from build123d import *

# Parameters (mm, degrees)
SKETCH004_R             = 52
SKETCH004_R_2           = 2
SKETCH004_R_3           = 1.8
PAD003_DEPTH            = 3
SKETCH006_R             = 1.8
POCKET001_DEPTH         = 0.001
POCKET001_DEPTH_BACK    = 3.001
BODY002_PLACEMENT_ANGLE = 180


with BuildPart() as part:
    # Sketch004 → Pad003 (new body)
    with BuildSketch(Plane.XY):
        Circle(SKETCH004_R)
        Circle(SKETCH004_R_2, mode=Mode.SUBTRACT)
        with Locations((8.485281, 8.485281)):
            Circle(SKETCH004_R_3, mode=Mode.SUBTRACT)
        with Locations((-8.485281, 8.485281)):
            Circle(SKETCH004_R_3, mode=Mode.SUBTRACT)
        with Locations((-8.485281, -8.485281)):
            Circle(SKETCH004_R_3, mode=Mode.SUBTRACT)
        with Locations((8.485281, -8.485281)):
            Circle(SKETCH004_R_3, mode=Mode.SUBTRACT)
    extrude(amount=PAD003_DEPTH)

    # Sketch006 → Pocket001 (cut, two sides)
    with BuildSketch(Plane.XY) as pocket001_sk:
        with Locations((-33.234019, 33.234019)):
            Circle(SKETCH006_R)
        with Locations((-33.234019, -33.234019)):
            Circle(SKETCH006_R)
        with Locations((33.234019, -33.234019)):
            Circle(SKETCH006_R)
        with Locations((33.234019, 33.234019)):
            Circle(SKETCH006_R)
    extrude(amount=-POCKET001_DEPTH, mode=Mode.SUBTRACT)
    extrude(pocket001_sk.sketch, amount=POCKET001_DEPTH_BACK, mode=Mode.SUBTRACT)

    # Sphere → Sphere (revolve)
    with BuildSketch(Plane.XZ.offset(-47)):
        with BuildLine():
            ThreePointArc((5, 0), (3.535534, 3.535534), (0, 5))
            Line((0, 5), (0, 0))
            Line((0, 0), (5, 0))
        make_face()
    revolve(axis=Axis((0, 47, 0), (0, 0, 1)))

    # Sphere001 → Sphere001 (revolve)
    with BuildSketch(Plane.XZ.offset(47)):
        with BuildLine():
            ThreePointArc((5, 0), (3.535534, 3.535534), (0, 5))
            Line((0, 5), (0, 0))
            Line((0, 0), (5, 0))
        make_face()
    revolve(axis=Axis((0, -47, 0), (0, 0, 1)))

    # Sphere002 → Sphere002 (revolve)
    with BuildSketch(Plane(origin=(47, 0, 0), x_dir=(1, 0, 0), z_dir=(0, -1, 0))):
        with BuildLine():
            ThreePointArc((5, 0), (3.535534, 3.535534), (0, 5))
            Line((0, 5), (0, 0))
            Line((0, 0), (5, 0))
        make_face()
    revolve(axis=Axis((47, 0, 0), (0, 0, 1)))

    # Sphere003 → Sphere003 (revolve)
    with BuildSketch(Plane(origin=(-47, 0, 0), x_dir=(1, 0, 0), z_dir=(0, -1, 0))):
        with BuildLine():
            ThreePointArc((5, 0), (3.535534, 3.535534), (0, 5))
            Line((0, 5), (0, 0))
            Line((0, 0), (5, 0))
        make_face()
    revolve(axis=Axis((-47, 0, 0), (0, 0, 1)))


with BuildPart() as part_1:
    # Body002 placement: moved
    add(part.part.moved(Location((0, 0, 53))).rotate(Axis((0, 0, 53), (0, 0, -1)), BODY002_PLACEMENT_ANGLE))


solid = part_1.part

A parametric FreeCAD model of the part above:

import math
import FreeCAD as App
import Part
import Sketcher

V = App.Vector

doc = App.newDocument("Part")
body = doc.addObject("PartDesign::Body", "Body")

# Sketch on XY plane
sketch1 = doc.addObject("Sketcher::SketchObject", "Sketch")
body.addObject(sketch1)
sketch1.AttachmentSupport = (doc.XY_Plane, [""])
sketch1.MapMode = "FlatFace"
sketch1.addGeometry(Part.Circle(V(0, 0, 0), V(0, 0, 1), 52), False)
sketch1.addGeometry(Part.Circle(V(-8.5, -8.5, 0), V(0, 0, 1), 1.8), False)
sketch1.addGeometry(Part.Circle(V(8.5, -8.5, 0), V(0, 0, 1), 1.8), False)
sketch1.addGeometry(Part.Circle(V(0, 0, 0), V(0, 0, 1), 2), False)
sketch1.addGeometry(Part.Circle(V(-8.5, 8.5, 0), V(0, 0, 1), 1.8), False)
sketch1.addGeometry(Part.Circle(V(8.5, 8.5, 0), V(0, 0, 1), 1.8), False)
sketch1.addConstraint(Sketcher.Constraint("Coincident", 0, 3, -1, 1))
sketch1.addConstraint(Sketcher.Constraint("Coincident", 3, 3, -1, 1))
sketch1.addConstraint(Sketcher.Constraint("Equal", 1, 2))
sketch1.addConstraint(Sketcher.Constraint("Equal", 2, 4))
sketch1.addConstraint(Sketcher.Constraint("Equal", 4, 5))
sketch1.addConstraint(Sketcher.Constraint("Symmetric", 2, 3, 4, 3, -1, 1))
sketch1.addConstraint(Sketcher.Constraint("Symmetric", 1, 3, 5, 3, -1, 1))
sketch1.addConstraint(Sketcher.Constraint("Symmetric", 1, 3, 2, 3, -2))
sketch1.addConstraint(Sketcher.Constraint("Diameter", 0, 104.0))
sketch1.addConstraint(Sketcher.Constraint("Diameter", 3, 4.0))
sketch1.addConstraint(Sketcher.Constraint("Diameter", 1, 3.6))
sketch1.addConstraint(Sketcher.Constraint("DistanceX", 1, 3, -1, 1, 8.485281))
sketch1.addConstraint(Sketcher.Constraint("DistanceY", 1, 3, -1, 1, 8.485281))
pad1 = doc.addObject("PartDesign::Pad", "Pad")
body.addObject(pad1)
pad1.Profile = sketch1
pad1.Length = 3

# Sketch on XY plane
sketch2 = doc.addObject("Sketcher::SketchObject", "Sketch001")
body.addObject(sketch2)
sketch2.AttachmentSupport = (doc.XY_Plane, [""])
sketch2.MapMode = "FlatFace"
sketch2.addGeometry(Part.Circle(V(-33.2, 33.2, 0), V(0, 0, 1), 1.8), False)
sketch2.addGeometry(Part.Circle(V(-33.2, -33.2, 0), V(0, 0, 1), 1.8), False)
sketch2.addGeometry(Part.Circle(V(33.2, -33.2, 0), V(0, 0, 1), 1.8), False)
sketch2.addGeometry(Part.Circle(V(33.2, 33.2, 0), V(0, 0, 1), 1.8), False)
sketch2.addConstraint(Sketcher.Constraint("Equal", 0, 1))
sketch2.addConstraint(Sketcher.Constraint("Equal", 1, 2))
sketch2.addConstraint(Sketcher.Constraint("Equal", 2, 3))
sketch2.addConstraint(Sketcher.Constraint("Symmetric", 0, 3, 2, 3, -1, 1))
sketch2.addConstraint(Sketcher.Constraint("Symmetric", 1, 3, 3, 3, -1, 1))
sketch2.addConstraint(Sketcher.Constraint("Symmetric", 1, 3, 2, 3, -2))
sketch2.addConstraint(Sketcher.Constraint("Diameter", 0, 3.6))
sketch2.addConstraint(Sketcher.Constraint("DistanceX", 0, 3, -1, 1, 33.234019))
sketch2.addConstraint(Sketcher.Constraint("DistanceY", -1, 1, 0, 3, 33.234019))
pocket1 = doc.addObject("PartDesign::Pocket", "Pocket")
body.addObject(pocket1)
pocket1.Profile = sketch2
pocket1.Type = "ThroughAll"
pocket1.Midplane = True

# Sketch on XZ plane
sketch3 = doc.addObject("Sketcher::SketchObject", "Sketch002")
body.addObject(sketch3)
sketch3.AttachmentSupport = (doc.XZ_Plane, [""])
sketch3.MapMode = "FlatFace"
sketch3.AttachmentOffset = App.Placement(V(0, 0, -47), App.Rotation())
sketch3.addGeometry(Part.ArcOfCircle(Part.Circle(V(0, 0, 0), V(0, 0, 1), 5), math.radians(0), math.radians(90)), False)
sketch3.addGeometry(Part.LineSegment(V(0, 5, 0), V(0, 0, 0)), False)
sketch3.addGeometry(Part.LineSegment(V(0, 0, 0), V(5, 0, 0)), False)
sketch3.addConstraint(Sketcher.Constraint("Coincident", 0, 2, 1, 1))
sketch3.addConstraint(Sketcher.Constraint("Coincident", 1, 2, 2, 1))
sketch3.addConstraint(Sketcher.Constraint("Coincident", 2, 2, 0, 1))
sketch3.addConstraint(Sketcher.Constraint("Vertical", 1))
sketch3.addConstraint(Sketcher.Constraint("Horizontal", 2))
sketch3.addConstraint(Sketcher.Constraint("Coincident", 0, 3, -1, 1))
sketch3.addConstraint(Sketcher.Constraint("Coincident", 1, 2, -1, 1))
sketch3.addConstraint(Sketcher.Constraint("Radius", 0, 5.0))
revolution = doc.addObject("PartDesign::Revolution", "Revolution")
body.addObject(revolution)
revolution.Profile = sketch3
revolution.ReferenceAxis = (sketch3, ["V_Axis"])
revolution.Angle = 360

# Sketch on XZ plane
sketch4 = doc.addObject("Sketcher::SketchObject", "Sketch003")
body.addObject(sketch4)
sketch4.AttachmentSupport = (doc.XZ_Plane, [""])
sketch4.MapMode = "FlatFace"
sketch4.AttachmentOffset = App.Placement(V(0, 0, 47), App.Rotation())
sketch4.addGeometry(Part.ArcOfCircle(Part.Circle(V(0, 0, 0), V(0, 0, 1), 5), math.radians(0), math.radians(90)), False)
sketch4.addGeometry(Part.LineSegment(V(0, 5, 0), V(0, 0, 0)), False)
sketch4.addGeometry(Part.LineSegment(V(0, 0, 0), V(5, 0, 0)), False)
sketch4.addConstraint(Sketcher.Constraint("Coincident", 0, 2, 1, 1))
sketch4.addConstraint(Sketcher.Constraint("Coincident", 1, 2, 2, 1))
sketch4.addConstraint(Sketcher.Constraint("Coincident", 2, 2, 0, 1))
sketch4.addConstraint(Sketcher.Constraint("Vertical", 1))
sketch4.addConstraint(Sketcher.Constraint("Horizontal", 2))
sketch4.addConstraint(Sketcher.Constraint("Coincident", 0, 3, -1, 1))
sketch4.addConstraint(Sketcher.Constraint("Coincident", 1, 2, -1, 1))
sketch4.addConstraint(Sketcher.Constraint("Radius", 0, 5.0))
revolution2 = doc.addObject("PartDesign::Revolution", "Revolution001")
body.addObject(revolution2)
revolution2.Profile = sketch4
revolution2.ReferenceAxis = (sketch4, ["V_Axis"])
revolution2.Angle = 360

# Sketch on XZ plane
sketch5 = doc.addObject("Sketcher::SketchObject", "Sketch004")
body.addObject(sketch5)
sketch5.AttachmentSupport = (doc.XZ_Plane, [""])
sketch5.MapMode = "FlatFace"
sketch5.addGeometry(Part.ArcOfCircle(Part.Circle(V(47, 0, 0), V(0, 0, 1), 5), math.radians(0), math.radians(90)), False)
sketch5.addGeometry(Part.LineSegment(V(47, 5, 0), V(47, 0, 0)), False)
sketch5.addGeometry(Part.LineSegment(V(47, 0, 0), V(52, 0, 0)), False)
sketch5.addGeometry(Part.LineSegment(V(47, 0, 0), V(47, 5, 0)), True)  # axis
sketch5.addConstraint(Sketcher.Constraint("Coincident", 0, 2, 1, 1))
sketch5.addConstraint(Sketcher.Constraint("Coincident", 1, 2, 2, 1))
sketch5.addConstraint(Sketcher.Constraint("Coincident", 2, 2, 0, 1))
sketch5.addConstraint(Sketcher.Constraint("Vertical", 1))
sketch5.addConstraint(Sketcher.Constraint("Horizontal", 2))
sketch5.addConstraint(Sketcher.Constraint("Vertical", 3))
sketch5.addConstraint(Sketcher.Constraint("Coincident", 1, 2, 0, 3))
sketch5.addConstraint(Sketcher.Constraint("Coincident", 3, 1, 0, 3))
sketch5.addConstraint(Sketcher.Constraint("PointOnObject", 0, 3, -1))
sketch5.addConstraint(Sketcher.Constraint("Equal", 1, 3))
sketch5.addConstraint(Sketcher.Constraint("Radius", 0, 5.0))
sketch5.addConstraint(Sketcher.Constraint("DistanceX", -1, 1, 0, 3, 47.0))
revolution3 = doc.addObject("PartDesign::Revolution", "Revolution002")
body.addObject(revolution3)
revolution3.Profile = sketch5
revolution3.ReferenceAxis = (sketch5, ["Axis0"])
revolution3.Angle = 360

# Sketch on XZ plane
sketch6 = doc.addObject("Sketcher::SketchObject", "Sketch005")
body.addObject(sketch6)
sketch6.AttachmentSupport = (doc.XZ_Plane, [""])
sketch6.MapMode = "FlatFace"
sketch6.addGeometry(Part.ArcOfCircle(Part.Circle(V(-47, 0, 0), V(0, 0, 1), 5), math.radians(0), math.radians(90)), False)
sketch6.addGeometry(Part.LineSegment(V(-47, 5, 0), V(-47, 0, 0)), False)
sketch6.addGeometry(Part.LineSegment(V(-47, 0, 0), V(-42, 0, 0)), False)
sketch6.addGeometry(Part.LineSegment(V(-47, 0, 0), V(-47, 5, 0)), True)  # axis
sketch6.addConstraint(Sketcher.Constraint("Coincident", 0, 2, 1, 1))
sketch6.addConstraint(Sketcher.Constraint("Coincident", 1, 2, 2, 1))
sketch6.addConstraint(Sketcher.Constraint("Coincident", 2, 2, 0, 1))
sketch6.addConstraint(Sketcher.Constraint("Vertical", 1))
sketch6.addConstraint(Sketcher.Constraint("Horizontal", 2))
sketch6.addConstraint(Sketcher.Constraint("Vertical", 3))
sketch6.addConstraint(Sketcher.Constraint("Coincident", 1, 2, 0, 3))
sketch6.addConstraint(Sketcher.Constraint("Coincident", 3, 1, 0, 3))
sketch6.addConstraint(Sketcher.Constraint("PointOnObject", 0, 3, -1))
sketch6.addConstraint(Sketcher.Constraint("Equal", 1, 3))
sketch6.addConstraint(Sketcher.Constraint("Radius", 0, 5.0))
sketch6.addConstraint(Sketcher.Constraint("DistanceX", 0, 3, -1, 1, 47.0))
revolution4 = doc.addObject("PartDesign::Revolution", "Revolution003")
body.addObject(revolution4)
revolution4.Profile = sketch6
revolution4.ReferenceAxis = (sketch6, ["Axis0"])
revolution4.Angle = 360
body2 = doc.addObject("PartDesign::Body", "Body001")
doc.recompute()

body.Placement = App.Placement(V(0, 0, 53), App.Rotation(V(0, 0, -1), 180))
boolean = doc.addObject("PartDesign::Boolean", "Boolean")
body2.addObject(boolean)
boolean.Type = "Fuse"
boolean.addObjects([body])

doc.recompute()
